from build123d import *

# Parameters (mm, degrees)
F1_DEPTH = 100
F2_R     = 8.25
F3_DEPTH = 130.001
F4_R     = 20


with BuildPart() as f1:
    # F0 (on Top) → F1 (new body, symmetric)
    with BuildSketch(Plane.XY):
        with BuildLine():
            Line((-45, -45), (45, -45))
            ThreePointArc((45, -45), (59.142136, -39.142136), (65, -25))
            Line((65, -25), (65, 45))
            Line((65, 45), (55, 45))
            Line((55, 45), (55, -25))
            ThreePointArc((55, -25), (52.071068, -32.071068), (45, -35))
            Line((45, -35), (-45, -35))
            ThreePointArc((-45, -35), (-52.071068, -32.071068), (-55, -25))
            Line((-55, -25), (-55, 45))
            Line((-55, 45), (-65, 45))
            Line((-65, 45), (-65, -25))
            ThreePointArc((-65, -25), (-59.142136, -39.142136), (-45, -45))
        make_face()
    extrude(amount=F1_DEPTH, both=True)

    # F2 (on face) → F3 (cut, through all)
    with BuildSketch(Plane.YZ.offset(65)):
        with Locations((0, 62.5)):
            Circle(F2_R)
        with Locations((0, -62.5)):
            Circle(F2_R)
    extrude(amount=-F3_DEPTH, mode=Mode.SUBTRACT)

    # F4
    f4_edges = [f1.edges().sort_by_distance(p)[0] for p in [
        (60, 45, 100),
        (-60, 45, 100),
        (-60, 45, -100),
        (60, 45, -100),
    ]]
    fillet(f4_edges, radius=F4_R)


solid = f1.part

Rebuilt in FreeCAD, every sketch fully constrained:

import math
import FreeCAD as App
import Part
import Sketcher
Q = App.Units.Quantity


def edges_at(feature, points):
    """Names of the edges that pass closest to the given points."""
    edges = feature.Shape.Edges
    near = lambda p: min(range(len(edges)), key=lambda i: edges[i].distToShape(Part.Vertex(*p))[0])
    return sorted({f"Edge{near(p) + 1}" for p in points})

doc = App.newDocument("Part")
params = doc.addObject("Spreadsheet::Sheet", "Params")
for row, (alias, value) in enumerate([
    ("sketch1_radius", "19.999999 mm"),
    ("sketch1_radius2", "9.999999 mm"),
    ("sketch1_width", "90 mm"),
    ("sketch1_height", "70 mm"),
    ("pad1_length", "200 mm"),
    ("sketch2_diameter", "16.5 mm"),
    ("fillet_radius", "20 mm"),
], start=1):
    params.set(f"A{row}", alias)
    params.set(f"B{row}", "=" + value)
    params.setAlias(f"B{row}", alias)

body = doc.addObject("PartDesign::Body", "Body")

sketch1 = body.newObject("Sketcher::SketchObject", "Sketch")
sketch1.AttachmentSupport = (doc.getObject("XY_Plane"), [""])
sketch1.MapMode = "FlatFace"
sketch1.addGeometry([
    Part.LineSegment(App.Vector(-45, -45, 0), App.Vector(45, -45, 0)),
    Part.ArcOfCircle(Part.Circle(App.Vector(45, -25, 0), App.Vector(0, 0, 1), 20), math.radians(-90), math.radians(0)),
    Part.LineSegment(App.Vector(65, -25, 0), App.Vector(65, 45, 0)),
    Part.LineSegment(App.Vector(65, 45, 0), App.Vector(55, 45, 0)),
    Part.LineSegment(App.Vector(55, 45, 0), App.Vector(55, -25, 0)),
    Part.ArcOfCircle(Part.Circle(App.Vector(45, -25, 0), App.Vector(0, 0, 1), 10), math.radians(-90), math.radians(0)),
    Part.LineSegment(App.Vector(45, -35, 0), App.Vector(-45, -35, 0)),
    Part.ArcOfCircle(Part.Circle(App.Vector(-45, -25, 0), App.Vector(0, 0, 1), 10), math.radians(180), math.radians(270)),
    Part.LineSegment(App.Vector(-55, -25, 0), App.Vector(-55, 45, 0)),
    Part.LineSegment(App.Vector(-55, 45, 0), App.Vector(-65, 45, 0)),
    Part.LineSegment(App.Vector(-65, 45, 0), App.Vector(-65, -25, 0)),
    Part.ArcOfCircle(Part.Circle(App.Vector(-45, -25, 0), App.Vector(0, 0, 1), 20), math.radians(180), math.radians(270)),
], False)
sketch1.addConstraint([
    Sketcher.Constraint("Tangent", 0, 2, 1, 1),
    Sketcher.Constraint("Tangent", 1, 2, 2, 1),
    Sketcher.Constraint("Coincident", 2, 2, 3, 1),
    Sketcher.Constraint("Coincident", 3, 2, 4, 1),
    Sketcher.Constraint("Tangent", 4, 2, 5, 2),
    Sketcher.Constraint("Tangent", 5, 1, 6, 1),
    Sketcher.Constraint("Tangent", 6, 2, 7, 2),
    Sketcher.Constraint("Tangent", 7, 1, 8, 1),
    Sketcher.Constraint("Coincident", 8, 2, 9, 1),
    Sketcher.Constraint("Coincident", 9, 2, 10, 1),
    Sketcher.Constraint("Tangent", 10, 2, 11, 1),
    Sketcher.Constraint("Tangent", 11, 2, 0, 1),
    Sketcher.Constraint("Horizontal", 0),
    Sketcher.Constraint("Vertical", 2),
    Sketcher.Constraint("Horizontal", 3),
    Sketcher.Constraint("Vertical", 4),
    Sketcher.Constraint("Horizontal", 6),
    Sketcher.Constraint("Vertical", 8),
    Sketcher.Constraint("Horizontal", 9),
    Sketcher.Constraint("Vertical", 10),
    Sketcher.Constraint("Coincident", 5, 3, 1, 3),
    Sketcher.Constraint("Coincident", 11, 3, 7, 3),
    Sketcher.Constraint("Equal", 5, 7),
    Sketcher.Constraint("Symmetric", 3, 2, 8, 2, -2),
    Sketcher.Constraint("Radius", 1, Q("19.999999 mm")),
    Sketcher.Constraint("Radius", 5, Q("9.999999 mm")),
    Sketcher.Constraint("DistanceX", 0, 1, 0, 2, Q("90 mm")),
    Sketcher.Constraint("DistanceY", 2, 1, 2, 2, Q("70 mm")),
    Sketcher.Constraint("DistanceY", 1, 3, -1, 1, Q("25.000001 mm")),
])
sketch1.setExpression("Constraints[24]", "Params.sketch1_radius")
sketch1.setExpression("Constraints[25]", "Params.sketch1_radius2")
sketch1.setExpression("Constraints[26]", "Params.sketch1_width")
sketch1.setExpression("Constraints[27]", "Params.sketch1_height")
pad1 = body.newObject("PartDesign::Pad", "Pad")
pad1.Profile = sketch1
pad1.setExpression("Length", "Params.pad1_length")
pad1.Midplane = True

sketch2 = body.newObject("Sketcher::SketchObject", "Sketch001")
sketch2.AttachmentSupport = (doc.getObject("YZ_Plane"), [""])
sketch2.MapMode = "FlatFace"
sketch2.AttachmentOffset = App.Placement(App.Vector(0, 0, 65), App.Rotation())
sketch2.addGeometry([
    Part.Circle(App.Vector(0, 62, 0), App.Vector(0, 0, 1), 8),
    Part.Circle(App.Vector(0, -62, 0), App.Vector(0, 0, 1), 8),
], False)
sketch2.addConstraint([
    Sketcher.Constraint("Equal", 0, 1),
    Sketcher.Constraint("Symmetric", 0, 3, 1, 3, -1, 1),
    Sketcher.Constraint("PointOnObject", 0, 3, -2),
    Sketcher.Constraint("Diameter", 0, Q("16.5 mm")),
    Sketcher.Constraint("DistanceY", 1, 3, 0, 3, Q("125 mm")),
])
sketch2.setExpression("Constraints[3]", "Params.sketch2_diameter")
pocket1 = body.newObject("PartDesign::Pocket", "Pocket")
pocket1.Profile = sketch2
pocket1.Type = "ThroughAll"
doc.recompute()

fillet = body.newObject("PartDesign::Fillet", "Fillet")
fillet.Base = (pocket1, edges_at(pocket1, [
    (60, 45, 100),
    (-60, 45, 100),
    (-60, 45, -100),
    (60, 45, -100),
]))
fillet.setExpression("Radius", "Params.fillet_radius")

doc.recompute()
